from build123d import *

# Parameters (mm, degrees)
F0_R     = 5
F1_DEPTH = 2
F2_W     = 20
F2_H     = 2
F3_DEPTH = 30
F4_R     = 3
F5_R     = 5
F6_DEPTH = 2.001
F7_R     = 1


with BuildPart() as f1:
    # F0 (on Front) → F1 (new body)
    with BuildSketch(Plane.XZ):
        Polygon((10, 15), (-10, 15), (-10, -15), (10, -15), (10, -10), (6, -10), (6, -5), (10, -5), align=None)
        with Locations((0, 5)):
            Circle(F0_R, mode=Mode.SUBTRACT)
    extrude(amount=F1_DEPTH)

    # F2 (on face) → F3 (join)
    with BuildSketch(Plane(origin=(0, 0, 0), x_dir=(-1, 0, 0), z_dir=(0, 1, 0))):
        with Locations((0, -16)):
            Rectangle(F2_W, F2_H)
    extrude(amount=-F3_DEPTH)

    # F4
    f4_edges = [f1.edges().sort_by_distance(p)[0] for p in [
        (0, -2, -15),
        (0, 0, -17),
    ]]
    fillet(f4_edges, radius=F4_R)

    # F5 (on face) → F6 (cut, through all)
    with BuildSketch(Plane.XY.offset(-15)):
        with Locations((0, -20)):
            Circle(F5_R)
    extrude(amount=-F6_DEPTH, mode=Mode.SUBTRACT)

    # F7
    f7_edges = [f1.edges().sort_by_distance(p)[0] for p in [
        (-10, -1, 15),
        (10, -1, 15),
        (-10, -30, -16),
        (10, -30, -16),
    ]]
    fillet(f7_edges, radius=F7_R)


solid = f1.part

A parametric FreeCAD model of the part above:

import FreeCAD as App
import Part
import Sketcher

V = App.Vector


def edges_at(feature, points):
    """Names of the edges that pass closest to the given points."""
    edges = feature.Shape.Edges
    near = lambda p: min(range(len(edges)), key=lambda i: edges[i].distToShape(Part.Vertex(*p))[0])
    return sorted({f"Edge{near(p) + 1}" for p in points})

doc = App.newDocument("Part")
body = doc.addObject("PartDesign::Body", "Body")

# Sketch on XZ plane
sketch1 = doc.addObject("Sketcher::SketchObject", "Sketch")
body.addObject(sketch1)
sketch1.AttachmentSupport = (doc.XZ_Plane, [""])
sketch1.MapMode = "FlatFace"
sketch1.addGeometry(Part.LineSegment(V(10, 15, 0), V(-10, 15, 0)), False)
sketch1.addGeometry(Part.LineSegment(V(-10, 15, 0), V(-10, -15, 0)), False)
sketch1.addGeometry(Part.LineSegment(V(-10, -15, 0), V(10, -15, 0)), False)
sketch1.addGeometry(Part.LineSegment(V(10, -15, 0), V(10, -10, 0)), False)
sketch1.addGeometry(Part.LineSegment(V(10, -10, 0), V(6, -10, 0)), False)
sketch1.addGeometry(Part.LineSegment(V(6, -10, 0), V(6, -5, 0)), False)
sketch1.addGeometry(Part.LineSegment(V(6, -5, 0), V(10, -5, 0)), False)
sketch1.addGeometry(Part.LineSegment(V(10, -5, 0), V(10, 15, 0)), False)
sketch1.addGeometry(Part.Circle(V(0, 5, 0), V(0, 0, 1), 5), False)
sketch1.addConstraint(Sketcher.Constraint("Coincident", 0, 2, 1, 1))
sketch1.addConstraint(Sketcher.Constraint("Coincident", 1, 2, 2, 1))
sketch1.addConstraint(Sketcher.Constraint("Coincident", 2, 2, 3, 1))
sketch1.addConstraint(Sketcher.Constraint("Coincident", 3, 2, 4, 1))
sketch1.addConstraint(Sketcher.Constraint("Coincident", 4, 2, 5, 1))
sketch1.addConstraint(Sketcher.Constraint("Coincident", 5, 2, 6, 1))
sketch1.addConstraint(Sketcher.Constraint("Coincident", 6, 2, 7, 1))
sketch1.addConstraint(Sketcher.Constraint("Coincident", 7, 2, 0, 1))
sketch1.addConstraint(Sketcher.Constraint("Horizontal", 0))
sketch1.addConstraint(Sketcher.Constraint("Vertical", 1))
sketch1.addConstraint(Sketcher.Constraint("Horizontal", 2))
sketch1.addConstraint(Sketcher.Constraint("Vertical", 3))
sketch1.addConstraint(Sketcher.Constraint("Horizontal", 4))
sketch1.addConstraint(Sketcher.Constraint("Vertical", 5))
sketch1.addConstraint(Sketcher.Constraint("Horizontal", 6))
sketch1.addConstraint(Sketcher.Constraint("Vertical", 7))
sketch1.addConstraint(Sketcher.Constraint("Symmetric", 0, 2, 2, 2, -1, 1))
sketch1.addConstraint(Sketcher.Constraint("PointOnObject", 8, 3, -2))
sketch1.addConstraint(Sketcher.Constraint("Vertical", 3, 2, 6, 2))
sketch1.addConstraint(Sketcher.Constraint("Equal", 3, 5))
sketch1.addConstraint(Sketcher.Constraint("Equal", 2, 7))
sketch1.addConstraint(Sketcher.Constraint("Diameter", 8, 10.0))
sketch1.addConstraint(Sketcher.Constraint("DistanceX", 0, 2, 0, 1, 20.0))
sketch1.addConstraint(Sketcher.Constraint("DistanceX", 4, 2, 4, 1, 4.0))
sketch1.addConstraint(Sketcher.Constraint("DistanceY", 1, 2, 1, 1, 30.0))
sketch1.addConstraint(Sketcher.Constraint("DistanceY", -1, 1, 8, 3, 5.0))
pad1 = doc.addObject("PartDesign::Pad", "Pad")
body.addObject(pad1)
pad1.Profile = sketch1
pad1.Length = 2

# Sketch on XZ plane
sketch2 = doc.addObject("Sketcher::SketchObject", "Sketch001")
body.addObject(sketch2)
sketch2.AttachmentSupport = (doc.XZ_Plane, [""])
sketch2.MapMode = "FlatFace"
sketch2.addGeometry(Part.LineSegment(V(10, -15, 0), V(10, -17, 0)), False)
sketch2.addGeometry(Part.LineSegment(V(10, -17, 0), V(-10, -17, 0)), False)
sketch2.addGeometry(Part.LineSegment(V(-10, -17, 0), V(-10, -15, 0)), False)
sketch2.addGeometry(Part.LineSegment(V(-10, -15, 0), V(10, -15, 0)), False)
sketch2.addConstraint(Sketcher.Constraint("Coincident", 0, 2, 1, 1))
sketch2.addConstraint(Sketcher.Constraint("Coincident", 1, 2, 2, 1))
sketch2.addConstraint(Sketcher.Constraint("Coincident", 2, 2, 3, 1))
sketch2.addConstraint(Sketcher.Constraint("Coincident", 3, 2, 0, 1))
sketch2.addConstraint(Sketcher.Constraint("Vertical", 0))
sketch2.addConstraint(Sketcher.Constraint("Horizontal", 1))
sketch2.addConstraint(Sketcher.Constraint("Vertical", 2))
sketch2.addConstraint(Sketcher.Constraint("Horizontal", 3))
sketch2.addConstraint(Sketcher.Constraint("DistanceX", 1, 2, 1, 1, 20.0))
sketch2.addConstraint(Sketcher.Constraint("DistanceY", 0, 2, 0, 1, 2.0))
sketch2.addConstraint(Sketcher.Constraint("DistanceX", -1, 1, 0, 2, 10.0))
sketch2.addConstraint(Sketcher.Constraint("DistanceY", 0, 2, -1, 1, 17.0))
pad2 = doc.addObject("PartDesign::Pad", "Pad001")
body.addObject(pad2)
pad2.Profile = sketch2
pad2.Length = 30
doc.recompute()

fillet = doc.addObject("PartDesign::Fillet", "Fillet")
body.addObject(fillet)
fillet.Base = (pad2, edges_at(pad2, [(0, -2, -15), (0, 0, -17)]))
fillet.Radius = 3

# Sketch on XY plane
sketch3 = doc.addObject("Sketcher::SketchObject", "Sketch002")
body.addObject(sketch3)
sketch3.AttachmentSupport = (doc.XY_Plane, [""])
sketch3.MapMode = "FlatFace"
sketch3.AttachmentOffset = App.Placement(V(0, 0, -15), App.Rotation())
sketch3.addGeometry(Part.Circle(V(0, -20, 0), V(0, 0, 1), 5), False)
sketch3.addConstraint(Sketcher.Constraint("PointOnObject", 0, 3, -2))
sketch3.addConstraint(Sketcher.Constraint("Diameter", 0, 10.0))
sketch3.addConstraint(Sketcher.Constraint("DistanceY", 0, 3, -1, 1, 20.0))
pocket1 = doc.addObject("PartDesign::Pocket", "Pocket")
body.addObject(pocket1)
pocket1.Profile = sketch3
pocket1.Type = "ThroughAll"
doc.recompute()

fillet2 = doc.addObject("PartDesign::Fillet", "Fillet001")
body.addObject(fillet2)
fillet2.Base = (pocket1, edges_at(pocket1, [
    (-10, -1, 15),
    (10, -1, 15),
    (-10, -30, -16),
    (10, -30, -16),
]))
fillet2.Radius = 1

doc.recompute()
